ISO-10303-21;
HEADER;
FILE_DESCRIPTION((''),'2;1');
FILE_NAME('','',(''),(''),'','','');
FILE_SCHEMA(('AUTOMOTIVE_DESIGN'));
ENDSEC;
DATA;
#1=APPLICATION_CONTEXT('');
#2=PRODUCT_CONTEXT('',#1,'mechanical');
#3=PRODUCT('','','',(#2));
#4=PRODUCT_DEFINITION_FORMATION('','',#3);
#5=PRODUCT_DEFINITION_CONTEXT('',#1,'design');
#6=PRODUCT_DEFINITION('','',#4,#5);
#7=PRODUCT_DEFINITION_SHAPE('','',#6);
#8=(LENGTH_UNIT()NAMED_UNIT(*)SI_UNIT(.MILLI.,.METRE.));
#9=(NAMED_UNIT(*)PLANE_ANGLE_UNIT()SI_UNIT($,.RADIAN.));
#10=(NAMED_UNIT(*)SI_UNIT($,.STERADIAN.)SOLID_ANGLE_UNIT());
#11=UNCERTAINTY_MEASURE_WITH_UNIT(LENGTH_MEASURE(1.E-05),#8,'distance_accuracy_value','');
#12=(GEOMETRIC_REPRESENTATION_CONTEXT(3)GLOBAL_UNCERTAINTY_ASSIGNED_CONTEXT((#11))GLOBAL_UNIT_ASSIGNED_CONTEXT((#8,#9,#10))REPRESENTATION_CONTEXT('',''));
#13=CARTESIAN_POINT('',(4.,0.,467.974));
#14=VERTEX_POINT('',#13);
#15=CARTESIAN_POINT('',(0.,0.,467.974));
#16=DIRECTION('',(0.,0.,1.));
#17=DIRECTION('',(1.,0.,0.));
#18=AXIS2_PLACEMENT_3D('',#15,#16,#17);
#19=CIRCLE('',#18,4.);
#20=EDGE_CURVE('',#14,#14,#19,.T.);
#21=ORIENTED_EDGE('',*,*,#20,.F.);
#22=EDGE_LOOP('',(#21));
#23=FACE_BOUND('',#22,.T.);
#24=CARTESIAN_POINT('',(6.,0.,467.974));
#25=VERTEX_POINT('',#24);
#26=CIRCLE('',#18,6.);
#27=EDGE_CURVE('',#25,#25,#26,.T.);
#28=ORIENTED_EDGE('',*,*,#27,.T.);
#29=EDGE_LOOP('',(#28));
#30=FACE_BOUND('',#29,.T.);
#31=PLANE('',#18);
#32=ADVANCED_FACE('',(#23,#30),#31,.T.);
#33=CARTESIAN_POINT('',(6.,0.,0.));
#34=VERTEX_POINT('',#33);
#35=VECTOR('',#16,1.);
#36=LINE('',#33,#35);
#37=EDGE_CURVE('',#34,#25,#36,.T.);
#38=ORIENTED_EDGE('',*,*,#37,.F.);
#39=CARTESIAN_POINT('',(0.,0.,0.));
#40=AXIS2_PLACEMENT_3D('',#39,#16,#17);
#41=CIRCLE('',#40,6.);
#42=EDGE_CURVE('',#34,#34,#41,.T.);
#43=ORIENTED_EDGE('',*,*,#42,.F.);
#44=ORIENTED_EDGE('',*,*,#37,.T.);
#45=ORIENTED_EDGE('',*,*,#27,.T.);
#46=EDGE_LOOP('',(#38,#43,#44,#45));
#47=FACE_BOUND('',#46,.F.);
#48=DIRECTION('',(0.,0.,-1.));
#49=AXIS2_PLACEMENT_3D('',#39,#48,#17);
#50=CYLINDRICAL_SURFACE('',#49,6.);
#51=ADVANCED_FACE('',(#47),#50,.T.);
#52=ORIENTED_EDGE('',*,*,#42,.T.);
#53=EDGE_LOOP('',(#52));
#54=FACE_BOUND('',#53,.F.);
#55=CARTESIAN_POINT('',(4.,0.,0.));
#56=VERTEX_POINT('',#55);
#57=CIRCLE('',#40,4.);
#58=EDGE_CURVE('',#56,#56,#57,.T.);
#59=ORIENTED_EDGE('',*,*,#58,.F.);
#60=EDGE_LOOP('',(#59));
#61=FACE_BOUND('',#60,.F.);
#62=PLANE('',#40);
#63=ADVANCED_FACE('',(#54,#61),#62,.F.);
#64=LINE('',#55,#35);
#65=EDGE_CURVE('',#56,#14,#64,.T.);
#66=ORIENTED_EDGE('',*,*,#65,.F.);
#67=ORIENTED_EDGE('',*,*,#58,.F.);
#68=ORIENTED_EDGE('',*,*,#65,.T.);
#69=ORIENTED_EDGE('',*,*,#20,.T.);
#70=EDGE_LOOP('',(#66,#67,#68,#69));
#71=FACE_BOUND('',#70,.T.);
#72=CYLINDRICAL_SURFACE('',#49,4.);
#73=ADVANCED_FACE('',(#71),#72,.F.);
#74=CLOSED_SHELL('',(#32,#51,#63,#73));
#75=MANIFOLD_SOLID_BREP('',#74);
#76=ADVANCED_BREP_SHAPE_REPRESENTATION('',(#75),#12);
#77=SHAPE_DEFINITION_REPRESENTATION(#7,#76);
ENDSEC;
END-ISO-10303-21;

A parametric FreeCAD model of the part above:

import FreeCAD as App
import Part
import Sketcher
from FreeCAD import Vector
Q = App.Units.Quantity

doc = App.newDocument("Part")
body = doc.addObject("PartDesign::Body", "Body")

sketch1 = doc.addObject("Sketcher::SketchObject", "Sketch")
body.addObject(sketch1)
sketch1.AttachmentSupport = (doc.XY_Plane, [""])
sketch1.MapMode = "FlatFace"
sketch1.addGeometry(Part.Circle(Vector(0, 0, 0), Vector(0, 0, 1), 6), False)
sketch1.addGeometry(Part.Circle(Vector(0, 0, 0), Vector(0, 0, 1), 4), False)
sketch1.addConstraint(Sketcher.Constraint("Coincident", 0, 3, -1, 1))
sketch1.addConstraint(Sketcher.Constraint("Coincident", 1, 3, -1, 1))
sketch1.addConstraint(Sketcher.Constraint("Diameter", 1, Q("8 mm")))
sketch1.addConstraint(Sketcher.Constraint("Diameter", 0, Q("12 mm")))
pad1 = doc.addObject("PartDesign::Pad", "Pad")
body.addObject(pad1)
pad1.Profile = sketch1
pad1.Length = 467.974

doc.recompute()
